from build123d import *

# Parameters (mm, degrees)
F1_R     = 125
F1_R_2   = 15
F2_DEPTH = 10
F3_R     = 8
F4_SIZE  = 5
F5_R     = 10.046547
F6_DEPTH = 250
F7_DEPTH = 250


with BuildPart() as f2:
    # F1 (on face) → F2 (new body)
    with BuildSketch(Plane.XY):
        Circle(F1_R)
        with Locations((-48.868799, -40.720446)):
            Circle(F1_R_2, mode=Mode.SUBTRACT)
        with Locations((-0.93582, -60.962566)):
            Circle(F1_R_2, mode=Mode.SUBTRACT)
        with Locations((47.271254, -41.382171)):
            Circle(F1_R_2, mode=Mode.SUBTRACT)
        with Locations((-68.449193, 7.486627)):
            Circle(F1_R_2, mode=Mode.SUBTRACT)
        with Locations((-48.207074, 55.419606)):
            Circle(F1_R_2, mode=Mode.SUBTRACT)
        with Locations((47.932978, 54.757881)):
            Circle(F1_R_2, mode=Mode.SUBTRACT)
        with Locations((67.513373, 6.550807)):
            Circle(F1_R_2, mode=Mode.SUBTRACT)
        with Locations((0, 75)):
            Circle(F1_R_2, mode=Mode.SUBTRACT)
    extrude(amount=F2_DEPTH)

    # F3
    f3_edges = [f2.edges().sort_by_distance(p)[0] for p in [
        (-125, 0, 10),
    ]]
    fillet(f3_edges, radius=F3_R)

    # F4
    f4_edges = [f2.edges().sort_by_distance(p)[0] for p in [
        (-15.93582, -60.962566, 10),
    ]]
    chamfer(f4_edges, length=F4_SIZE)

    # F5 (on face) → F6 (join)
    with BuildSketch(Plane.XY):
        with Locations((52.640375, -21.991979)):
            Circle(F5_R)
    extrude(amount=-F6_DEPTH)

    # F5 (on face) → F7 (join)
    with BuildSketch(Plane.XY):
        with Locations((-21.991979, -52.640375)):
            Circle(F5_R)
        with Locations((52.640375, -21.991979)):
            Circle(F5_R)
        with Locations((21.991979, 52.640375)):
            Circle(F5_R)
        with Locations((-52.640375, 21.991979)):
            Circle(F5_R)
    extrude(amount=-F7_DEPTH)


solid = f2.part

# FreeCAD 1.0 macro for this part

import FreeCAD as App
import Part
import Sketcher
from FreeCAD import Vector


def edges_at(feature, points):
    """Names of the edges that pass closest to the given points."""
    edges = feature.Shape.Edges
    near = lambda p: min(range(len(edges)), key=lambda i: edges[i].distToShape(Part.Vertex(*p))[0])
    return sorted({f"Edge{near(p) + 1}" for p in points})

doc = App.newDocument("Part")
body = doc.addObject("PartDesign::Body", "Body")

# Sketch on XY plane
sketch1 = body.newObject("Sketcher::SketchObject", "Sketch")
sketch1.AttachmentSupport = (doc.getObject("XY_Plane"), [""])
sketch1.MapMode = "FlatFace"
sketch1.addGeometry(Part.Circle(Vector(0, 0, 0), Vector(0, 0, 1), 125), False)
sketch1.addGeometry(Part.Circle(Vector(-48.868799, -40.720446, 0), Vector(0, 0, 1), 15), False)
sketch1.addGeometry(Part.Circle(Vector(-0.93582, -60.962566, 0), Vector(0, 0, 1), 15), False)
sketch1.addGeometry(Part.Circle(Vector(47.271254, -41.382171, 0), Vector(0, 0, 1), 15), False)
sketch1.addGeometry(Part.Circle(Vector(67.513373, 6.550807, 0), Vector(0, 0, 1), 15), False)
sketch1.addGeometry(Part.Circle(Vector(-68.449193, 7.486627, 0), Vector(0, 0, 1), 15), False)
sketch1.addGeometry(Part.Circle(Vector(-48.207074, 55.419606, 0), Vector(0, 0, 1), 15), False)
sketch1.addGeometry(Part.Circle(Vector(0, 75, 0), Vector(0, 0, 1), 15), False)
sketch1.addGeometry(Part.Circle(Vector(47.932978, 54.757881, 0), Vector(0, 0, 1), 15), False)
sketch1.addConstraint(Sketcher.Constraint("Coincident", 0, 3, -1, 1))
sketch1.addConstraint(Sketcher.Constraint("Equal", 1, 2))
sketch1.addConstraint(Sketcher.Constraint("Equal", 2, 3))
sketch1.addConstraint(Sketcher.Constraint("Equal", 3, 4))
sketch1.addConstraint(Sketcher.Constraint("Equal", 4, 5))
sketch1.addConstraint(Sketcher.Constraint("Equal", 5, 6))
sketch1.addConstraint(Sketcher.Constraint("Equal", 6, 7))
sketch1.addConstraint(Sketcher.Constraint("Equal", 7, 8))
sketch1.addConstraint(Sketcher.Constraint("PointOnObject", 7, 3, -2))
sketch1.addConstraint(Sketcher.Constraint("Diameter", 0, 250.0))
sketch1.addConstraint(Sketcher.Constraint("Diameter", 1, 30.0))
sketch1.addConstraint(Sketcher.Constraint("DistanceY", -1, 1, 7, 3, 75.0))
sketch1.addConstraint(Sketcher.Constraint("DistanceX", 1, 3, -1, 1, 48.868799))
sketch1.addConstraint(Sketcher.Constraint("DistanceY", 4, 3, 6, 3, 48.868799))
sketch1.addConstraint(Sketcher.Constraint("DistanceX", 2, 3, -1, 1, 0.93582))
sketch1.addConstraint(Sketcher.Constraint("DistanceY", 3, 3, -1, 1, 41.382171))
sketch1.addConstraint(Sketcher.Constraint("DistanceY", -1, 1, 8, 3, 54.757881))
sketch1.addConstraint(Sketcher.Constraint("DistanceY", 2, 3, 1, 3, 20.24212))
sketch1.addConstraint(Sketcher.Constraint("DistanceX", 3, 3, 4, 3, 20.242119))
sketch1.addConstraint(Sketcher.Constraint("DistanceX", 1, 3, 4, 3, 116.382172))
sketch1.addConstraint(Sketcher.Constraint("DistanceY", 4, 3, 5, 3, 0.93582))
sketch1.addConstraint(Sketcher.Constraint("DistanceX", 5, 3, 6, 3, 20.242119))
sketch1.addConstraint(Sketcher.Constraint("DistanceY", 1, 3, 6, 3, 96.140052))
sketch1.addConstraint(Sketcher.Constraint("DistanceX", 6, 3, 8, 3, 96.140052))
sketch1.addConstraint(Sketcher.Constraint("DistanceY", 1, 3, -1, 1, 40.720446))
sketch1.addConstraint(Sketcher.Constraint("DistanceX", 5, 3, -1, 1, 68.449193))
pad1 = body.newObject("PartDesign::Pad", "Pad")
pad1.Profile = sketch1
pad1.Length = 10
doc.recompute()

fillet = body.newObject("PartDesign::Fillet", "Fillet")
fillet.Base = (pad1, edges_at(pad1, [(-125, 0, 10)]))
fillet.Radius = 8
doc.recompute()

chamfer = body.newObject("PartDesign::Chamfer", "Chamfer")
chamfer.Base = (fillet, edges_at(fillet, [(-15.936, -60.963, 10)]))
chamfer.Size = 5

# Sketch on XY plane
sketch2 = body.newObject("Sketcher::SketchObject", "Sketch001")
sketch2.AttachmentSupport = (doc.getObject("XY_Plane"), [""])
sketch2.MapMode = "FlatFace"
sketch2.addGeometry(Part.Circle(Vector(52.640375, -21.991979, 0), Vector(0, 0, 1), 10.046547), False)
sketch2.addConstraint(Sketcher.Constraint("Diameter", 0, 20.093094))
sketch2.addConstraint(Sketcher.Constraint("DistanceY", 0, 3, -1, 1, 21.991979))
sketch2.addConstraint(Sketcher.Constraint("DistanceX", -1, 1, 0, 3, 52.640375))
pad2 = body.newObject("PartDesign::Pad", "Pad001")
pad2.Profile = sketch2
pad2.Length = 250
pad2.Reversed = True

# Sketch on XY plane
sketch3 = body.newObject("Sketcher::SketchObject", "Sketch002")
sketch3.AttachmentSupport = (doc.getObject("XY_Plane"), [""])
sketch3.MapMode = "FlatFace"
sketch3.addGeometry(Part.Circle(Vector(-21.991979, -52.640375, 0), Vector(0, 0, 1), 10.046547), False)
sketch3.addGeometry(Part.Circle(Vector(52.640375, -21.991979, 0), Vector(0, 0, 1), 10.046547), False)
sketch3.addGeometry(Part.Circle(Vector(21.991979, 52.640375, 0), Vector(0, 0, 1), 10.046547), False)
sketch3.addGeometry(Part.Circle(Vector(-52.640375, 21.991979, 0), Vector(0, 0, 1), 10.046547), False)
sketch3.addConstraint(Sketcher.Constraint("Equal", 0, 1))
sketch3.addConstraint(Sketcher.Constraint("Equal", 1, 2))
sketch3.addConstraint(Sketcher.Constraint("Equal", 2, 3))
sketch3.addConstraint(Sketcher.Constraint("Symmetric", 0, 3, 2, 3, -1, 1))
sketch3.addConstraint(Sketcher.Constraint("Symmetric", 1, 3, 3, 3, -1, 1))
sketch3.addConstraint(Sketcher.Constraint("Diameter", 0, 20.093094))
sketch3.addConstraint(Sketcher.Constraint("DistanceX", 0, 3, -1, 1, 21.991979))
sketch3.addConstraint(Sketcher.Constraint("DistanceY", 1, 3, -1, 1, 21.991979))
sketch3.addConstraint(Sketcher.Constraint("DistanceY", 0, 3, 2, 3, 105.28075))
sketch3.addConstraint(Sketcher.Constraint("DistanceX", 3, 3, 1, 3, 105.28075))
pad3 = body.newObject("PartDesign::Pad", "Pad002")
pad3.Profile = sketch3
pad3.Length = 250
pad3.Reversed = True

doc.recompute()
